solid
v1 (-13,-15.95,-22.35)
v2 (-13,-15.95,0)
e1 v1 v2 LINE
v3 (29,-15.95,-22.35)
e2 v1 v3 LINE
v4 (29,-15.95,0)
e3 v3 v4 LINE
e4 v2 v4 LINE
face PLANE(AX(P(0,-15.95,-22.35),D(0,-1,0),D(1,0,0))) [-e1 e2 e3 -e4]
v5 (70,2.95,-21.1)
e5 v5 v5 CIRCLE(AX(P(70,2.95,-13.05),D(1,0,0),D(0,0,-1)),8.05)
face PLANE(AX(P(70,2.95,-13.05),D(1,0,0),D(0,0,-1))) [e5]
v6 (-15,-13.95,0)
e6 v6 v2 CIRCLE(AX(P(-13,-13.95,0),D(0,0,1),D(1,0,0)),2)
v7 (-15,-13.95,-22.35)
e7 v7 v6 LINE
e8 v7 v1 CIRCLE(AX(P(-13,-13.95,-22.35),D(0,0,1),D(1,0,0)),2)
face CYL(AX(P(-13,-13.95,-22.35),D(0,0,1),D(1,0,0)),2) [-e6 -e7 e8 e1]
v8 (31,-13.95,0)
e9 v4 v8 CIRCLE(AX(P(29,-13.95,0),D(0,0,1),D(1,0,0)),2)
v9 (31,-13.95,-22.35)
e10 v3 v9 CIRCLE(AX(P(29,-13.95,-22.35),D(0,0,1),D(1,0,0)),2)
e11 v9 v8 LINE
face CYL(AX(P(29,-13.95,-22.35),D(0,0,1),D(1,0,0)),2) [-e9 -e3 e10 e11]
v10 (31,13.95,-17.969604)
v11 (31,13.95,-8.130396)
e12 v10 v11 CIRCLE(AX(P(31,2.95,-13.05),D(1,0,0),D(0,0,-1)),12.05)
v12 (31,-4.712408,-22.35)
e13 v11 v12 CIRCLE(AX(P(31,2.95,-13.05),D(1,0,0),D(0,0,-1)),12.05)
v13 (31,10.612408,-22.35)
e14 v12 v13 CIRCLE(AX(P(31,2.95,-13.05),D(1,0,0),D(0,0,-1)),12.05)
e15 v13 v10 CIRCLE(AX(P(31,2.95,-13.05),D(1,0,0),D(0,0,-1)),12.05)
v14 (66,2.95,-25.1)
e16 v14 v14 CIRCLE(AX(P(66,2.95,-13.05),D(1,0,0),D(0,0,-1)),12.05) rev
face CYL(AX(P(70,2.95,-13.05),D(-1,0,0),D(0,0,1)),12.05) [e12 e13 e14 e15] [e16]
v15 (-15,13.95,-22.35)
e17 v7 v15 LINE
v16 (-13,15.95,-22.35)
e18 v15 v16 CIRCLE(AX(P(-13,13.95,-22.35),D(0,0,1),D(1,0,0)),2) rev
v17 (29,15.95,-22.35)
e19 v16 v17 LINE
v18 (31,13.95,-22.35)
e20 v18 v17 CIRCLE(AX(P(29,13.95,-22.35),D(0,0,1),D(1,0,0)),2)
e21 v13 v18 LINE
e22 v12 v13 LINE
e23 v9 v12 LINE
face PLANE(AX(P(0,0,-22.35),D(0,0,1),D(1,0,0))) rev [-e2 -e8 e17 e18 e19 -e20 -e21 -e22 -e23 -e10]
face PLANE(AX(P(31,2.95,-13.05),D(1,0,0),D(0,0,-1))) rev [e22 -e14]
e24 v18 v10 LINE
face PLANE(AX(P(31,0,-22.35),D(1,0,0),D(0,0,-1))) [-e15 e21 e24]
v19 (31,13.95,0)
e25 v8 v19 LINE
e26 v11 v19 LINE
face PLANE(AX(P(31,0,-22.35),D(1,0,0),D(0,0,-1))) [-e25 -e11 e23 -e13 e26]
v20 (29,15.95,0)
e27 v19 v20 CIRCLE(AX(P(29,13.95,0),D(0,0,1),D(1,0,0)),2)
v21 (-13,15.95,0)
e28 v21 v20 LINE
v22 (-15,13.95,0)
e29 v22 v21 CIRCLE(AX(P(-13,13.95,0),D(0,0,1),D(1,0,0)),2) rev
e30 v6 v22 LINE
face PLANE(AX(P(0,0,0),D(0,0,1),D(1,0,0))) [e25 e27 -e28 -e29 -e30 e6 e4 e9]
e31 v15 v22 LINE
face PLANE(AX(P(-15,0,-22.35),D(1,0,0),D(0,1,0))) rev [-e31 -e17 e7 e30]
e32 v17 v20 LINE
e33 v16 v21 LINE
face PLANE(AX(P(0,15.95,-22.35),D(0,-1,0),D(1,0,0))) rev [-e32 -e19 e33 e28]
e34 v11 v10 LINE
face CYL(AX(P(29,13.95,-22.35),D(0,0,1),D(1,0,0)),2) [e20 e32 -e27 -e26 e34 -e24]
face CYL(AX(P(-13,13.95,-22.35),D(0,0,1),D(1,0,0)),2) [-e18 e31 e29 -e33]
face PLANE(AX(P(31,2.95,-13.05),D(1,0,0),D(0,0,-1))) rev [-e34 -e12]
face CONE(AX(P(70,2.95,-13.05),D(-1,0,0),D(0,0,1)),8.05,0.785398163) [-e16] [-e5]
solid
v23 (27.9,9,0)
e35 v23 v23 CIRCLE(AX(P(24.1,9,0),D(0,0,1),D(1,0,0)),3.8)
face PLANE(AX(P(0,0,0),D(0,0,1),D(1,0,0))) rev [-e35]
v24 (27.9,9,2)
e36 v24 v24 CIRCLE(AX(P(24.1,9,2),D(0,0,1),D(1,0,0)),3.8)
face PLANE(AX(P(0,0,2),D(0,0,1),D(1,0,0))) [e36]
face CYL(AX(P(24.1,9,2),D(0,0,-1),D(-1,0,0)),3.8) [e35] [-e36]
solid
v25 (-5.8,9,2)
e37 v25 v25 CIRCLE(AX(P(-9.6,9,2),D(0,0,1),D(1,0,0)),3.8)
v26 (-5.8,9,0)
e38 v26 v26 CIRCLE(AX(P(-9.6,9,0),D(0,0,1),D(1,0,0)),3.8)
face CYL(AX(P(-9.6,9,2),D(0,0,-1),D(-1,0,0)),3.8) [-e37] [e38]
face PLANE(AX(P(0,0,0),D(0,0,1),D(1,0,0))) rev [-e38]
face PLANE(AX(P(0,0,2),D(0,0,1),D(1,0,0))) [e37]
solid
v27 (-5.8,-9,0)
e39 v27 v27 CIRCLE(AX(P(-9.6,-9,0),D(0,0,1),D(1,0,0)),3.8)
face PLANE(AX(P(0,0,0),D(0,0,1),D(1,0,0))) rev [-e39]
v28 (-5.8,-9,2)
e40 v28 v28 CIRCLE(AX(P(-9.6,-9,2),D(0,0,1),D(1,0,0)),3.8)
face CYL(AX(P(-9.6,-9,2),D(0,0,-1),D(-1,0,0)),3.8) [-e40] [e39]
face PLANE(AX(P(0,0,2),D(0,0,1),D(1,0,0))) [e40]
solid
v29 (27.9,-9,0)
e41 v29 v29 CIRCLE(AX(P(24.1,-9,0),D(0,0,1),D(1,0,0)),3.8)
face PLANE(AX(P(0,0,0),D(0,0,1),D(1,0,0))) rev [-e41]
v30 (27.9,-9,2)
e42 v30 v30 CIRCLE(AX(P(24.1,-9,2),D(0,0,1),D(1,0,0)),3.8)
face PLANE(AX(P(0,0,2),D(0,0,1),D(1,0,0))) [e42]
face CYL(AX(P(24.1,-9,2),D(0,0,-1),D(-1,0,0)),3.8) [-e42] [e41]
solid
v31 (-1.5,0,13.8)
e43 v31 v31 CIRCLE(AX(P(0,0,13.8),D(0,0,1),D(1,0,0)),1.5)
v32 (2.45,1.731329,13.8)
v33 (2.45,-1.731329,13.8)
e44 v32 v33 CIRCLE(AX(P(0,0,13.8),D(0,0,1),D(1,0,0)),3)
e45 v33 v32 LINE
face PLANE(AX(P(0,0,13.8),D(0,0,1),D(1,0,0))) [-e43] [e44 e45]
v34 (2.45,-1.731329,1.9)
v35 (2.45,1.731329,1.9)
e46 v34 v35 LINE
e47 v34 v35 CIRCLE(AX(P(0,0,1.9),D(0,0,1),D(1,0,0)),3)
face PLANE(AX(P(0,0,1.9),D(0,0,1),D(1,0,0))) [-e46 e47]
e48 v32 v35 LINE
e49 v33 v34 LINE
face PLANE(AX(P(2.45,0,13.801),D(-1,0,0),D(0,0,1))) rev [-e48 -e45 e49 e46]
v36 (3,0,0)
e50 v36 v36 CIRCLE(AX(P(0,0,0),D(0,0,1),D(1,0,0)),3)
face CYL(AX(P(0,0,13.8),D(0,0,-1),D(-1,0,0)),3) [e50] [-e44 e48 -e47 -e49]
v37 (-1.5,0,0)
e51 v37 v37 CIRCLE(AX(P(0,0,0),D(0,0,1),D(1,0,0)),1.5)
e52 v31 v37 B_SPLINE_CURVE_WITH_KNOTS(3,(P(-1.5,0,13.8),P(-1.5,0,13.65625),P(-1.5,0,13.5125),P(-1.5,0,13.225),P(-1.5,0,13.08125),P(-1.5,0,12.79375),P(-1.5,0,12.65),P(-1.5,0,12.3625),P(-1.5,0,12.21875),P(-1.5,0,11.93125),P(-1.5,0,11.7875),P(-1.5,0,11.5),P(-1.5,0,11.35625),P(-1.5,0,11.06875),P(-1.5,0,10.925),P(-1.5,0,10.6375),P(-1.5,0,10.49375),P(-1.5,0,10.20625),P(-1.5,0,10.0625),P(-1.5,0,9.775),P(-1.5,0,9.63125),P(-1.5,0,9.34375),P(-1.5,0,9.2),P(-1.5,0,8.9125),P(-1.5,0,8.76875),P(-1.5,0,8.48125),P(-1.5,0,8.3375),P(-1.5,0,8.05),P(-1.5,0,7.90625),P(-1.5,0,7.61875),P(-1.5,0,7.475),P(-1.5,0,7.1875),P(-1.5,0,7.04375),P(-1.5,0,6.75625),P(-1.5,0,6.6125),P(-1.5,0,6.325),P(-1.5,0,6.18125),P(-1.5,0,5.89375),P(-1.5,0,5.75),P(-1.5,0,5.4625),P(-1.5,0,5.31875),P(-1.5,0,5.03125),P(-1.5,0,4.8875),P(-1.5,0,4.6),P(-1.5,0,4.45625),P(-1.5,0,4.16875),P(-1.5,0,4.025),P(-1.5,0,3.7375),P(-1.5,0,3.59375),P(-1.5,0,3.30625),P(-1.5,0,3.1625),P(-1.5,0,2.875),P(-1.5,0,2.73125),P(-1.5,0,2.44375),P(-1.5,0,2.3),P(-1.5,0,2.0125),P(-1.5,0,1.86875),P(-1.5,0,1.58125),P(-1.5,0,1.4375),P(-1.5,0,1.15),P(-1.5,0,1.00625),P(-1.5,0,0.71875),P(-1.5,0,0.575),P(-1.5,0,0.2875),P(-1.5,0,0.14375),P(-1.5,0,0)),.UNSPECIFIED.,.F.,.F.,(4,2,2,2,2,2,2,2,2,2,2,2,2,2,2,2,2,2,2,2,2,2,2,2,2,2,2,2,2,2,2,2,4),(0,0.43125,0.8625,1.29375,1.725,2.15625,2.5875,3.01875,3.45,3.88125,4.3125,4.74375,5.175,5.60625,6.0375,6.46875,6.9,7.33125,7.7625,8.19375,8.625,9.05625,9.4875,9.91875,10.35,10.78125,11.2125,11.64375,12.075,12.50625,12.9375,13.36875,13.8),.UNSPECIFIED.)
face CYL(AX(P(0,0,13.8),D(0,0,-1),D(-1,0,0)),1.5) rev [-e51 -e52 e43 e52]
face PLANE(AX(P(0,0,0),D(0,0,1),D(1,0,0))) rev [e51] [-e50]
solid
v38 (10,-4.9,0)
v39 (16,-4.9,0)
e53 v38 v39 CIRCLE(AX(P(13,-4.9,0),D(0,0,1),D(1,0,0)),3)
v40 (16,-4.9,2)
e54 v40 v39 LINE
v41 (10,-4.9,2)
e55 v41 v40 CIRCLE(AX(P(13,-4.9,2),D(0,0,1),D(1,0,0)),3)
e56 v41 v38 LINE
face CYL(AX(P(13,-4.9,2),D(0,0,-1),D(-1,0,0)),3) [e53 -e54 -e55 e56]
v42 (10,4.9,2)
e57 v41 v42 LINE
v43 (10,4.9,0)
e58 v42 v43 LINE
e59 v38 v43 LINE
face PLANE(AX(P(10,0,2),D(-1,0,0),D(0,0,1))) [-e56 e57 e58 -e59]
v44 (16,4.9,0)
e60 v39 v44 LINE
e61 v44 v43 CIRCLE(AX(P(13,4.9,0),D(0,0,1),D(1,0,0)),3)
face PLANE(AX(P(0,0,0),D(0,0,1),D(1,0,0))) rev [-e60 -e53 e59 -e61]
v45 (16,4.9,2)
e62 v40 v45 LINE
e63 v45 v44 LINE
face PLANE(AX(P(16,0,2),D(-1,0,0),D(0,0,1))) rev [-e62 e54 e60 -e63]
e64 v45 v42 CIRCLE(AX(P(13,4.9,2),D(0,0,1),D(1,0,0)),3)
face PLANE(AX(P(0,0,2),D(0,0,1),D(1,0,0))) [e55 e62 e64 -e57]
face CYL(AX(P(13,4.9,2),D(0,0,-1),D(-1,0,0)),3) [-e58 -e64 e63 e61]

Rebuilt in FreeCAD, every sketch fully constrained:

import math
import FreeCAD as App
import Part
import Sketcher
from FreeCAD import Vector


def edges_at(feature, points):
    """Names of the edges that pass closest to the given points."""
    edges = feature.Shape.Edges
    near = lambda p: min(range(len(edges)), key=lambda i: edges[i].distToShape(Part.Vertex(*p))[0])
    return sorted({f"Edge{near(p) + 1}" for p in points})

doc = App.newDocument("Part")
params = doc.addObject("Spreadsheet::Sheet", "Params")
for row, (alias, value) in enumerate([
    ("sketch1_diameter", "6 mm"),
    ("sketch1_diameter2", "3 mm"),
    ("pad1_length", "13.8 mm"),
    ("sketch2_radius", "3 mm"),
    ("sketch3_radius", "3 mm"),
    ("sketch3_height", "9.8 mm"),
    ("pad2_length", "2 mm"),
    ("sketch4_diameter", "7.6 mm"),
    ("pad3_length", "2 mm"),
    ("sketch5_diameter", "7.6 mm"),
    ("pad4_length", "2 mm"),
    ("sketch6_diameter", "7.6 mm"),
    ("pad5_length", "2 mm"),
    ("sketch7_diameter", "7.6 mm"),
    ("pad6_length", "2 mm"),
    ("sketch8_radius", "2 mm"),
    ("sketch8_width", "42 mm"),
    ("sketch8_height", "27.9 mm"),
    ("pad7_length", "22.35 mm"),
    ("sketch9_diameter", "24.1 mm"),
    ("pad8_length", "39 mm"),
    ("chamfer_size", "4 mm"),
], start=1):
    params.set(f"A{row}", alias)
    params.set(f"B{row}", "=" + value)
    params.setAlias(f"B{row}", alias)

body = doc.addObject("PartDesign::Body", "Body")

# Sketch on XY plane
sketch1 = body.newObject("Sketcher::SketchObject", "Sketch")
sketch1.AttachmentSupport = (doc.getObject("XY_Plane"), [""])
sketch1.MapMode = "FlatFace"
sketch1.addGeometry(Part.Circle(Vector(0, 0, 0), Vector(0, 0, 1), 3), False)
sketch1.addGeometry(Part.Circle(Vector(0, 0, 0), Vector(0, 0, 1), 1.5), False)
sketch1.addConstraint(Sketcher.Constraint("Coincident", 0, 3, -1, 1))
sketch1.addConstraint(Sketcher.Constraint("Coincident", 1, 3, -1, 1))
sketch1.addConstraint(Sketcher.Constraint("Diameter", 0, 6.0))
sketch1.addConstraint(Sketcher.Constraint("Diameter", 1, 3.0))
sketch1.setExpression("Constraints[2]", "Params.sketch1_diameter")
sketch1.setExpression("Constraints[3]", "Params.sketch1_diameter2")
pad1 = body.newObject("PartDesign::Pad", "Pad")
pad1.Profile = sketch1
pad1.setExpression("Length", "Params.pad1_length")

# Sketch on XY plane
sketch2 = body.newObject("Sketcher::SketchObject", "Sketch001")
sketch2.AttachmentSupport = (doc.getObject("XY_Plane"), [""])
sketch2.MapMode = "FlatFace"
sketch2.AttachmentOffset = App.Placement(Vector(0, 0, 1.9), App.Rotation())
sketch2.addGeometry(Part.LineSegment(Vector(2.5, 1.7, 0), Vector(2.5, -1.7, 0)), False)
sketch2.addGeometry(Part.ArcOfCircle(Part.Circle(Vector(0, 0, 0), Vector(0, 0, 1), 3), math.radians(-35), math.radians(35)), False)
sketch2.addConstraint(Sketcher.Constraint("Coincident", 0, 1, 1, 2))
sketch2.addConstraint(Sketcher.Constraint("Coincident", 1, 1, 0, 2))
sketch2.addConstraint(Sketcher.Constraint("Vertical", 0))
sketch2.addConstraint(Sketcher.Constraint("Coincident", 1, 3, -1, 1))
sketch2.addConstraint(Sketcher.Constraint("Radius", 1, 3.0))
sketch2.addConstraint(Sketcher.Constraint("DistanceX", -1, 1, 0, 1, 2.45))
sketch2.setExpression("Constraints[4]", "Params.sketch2_radius")
pocket1 = body.newObject("PartDesign::Pocket", "Pocket")
pocket1.Profile = sketch2
pocket1.Type = "UpToFirst"
pocket1.Reversed = True
body2 = doc.addObject("PartDesign::Body", "Body001")

# Sketch on XY plane
sketch3 = body2.newObject("Sketcher::SketchObject", "Sketch002")
sketch3.AttachmentSupport = (doc.getObject("XY_Plane001"), [""])
sketch3.MapMode = "FlatFace"
sketch3.addGeometry(Part.LineSegment(Vector(16, -4.9, 0), Vector(16, 4.9, 0)), False)
sketch3.addGeometry(Part.ArcOfCircle(Part.Circle(Vector(13, 4.9, 0), Vector(0, 0, 1), 3), math.radians(0), math.radians(180)), False)
sketch3.addGeometry(Part.LineSegment(Vector(10, 4.9, 0), Vector(10, -4.9, 0)), False)
sketch3.addGeometry(Part.ArcOfCircle(Part.Circle(Vector(13, -4.9, 0), Vector(0, 0, 1), 3), math.radians(180), math.radians(360)), False)
sketch3.addConstraint(Sketcher.Constraint("Tangent", 0, 2, 1, 1))
sketch3.addConstraint(Sketcher.Constraint("Tangent", 1, 2, 2, 1))
sketch3.addConstraint(Sketcher.Constraint("Tangent", 2, 2, 3, 1))
sketch3.addConstraint(Sketcher.Constraint("Tangent", 3, 2, 0, 1))
sketch3.addConstraint(Sketcher.Constraint("Vertical", 0))
sketch3.addConstraint(Sketcher.Constraint("Vertical", 2))
sketch3.addConstraint(Sketcher.Constraint("Radius", 1, 3.0))
sketch3.addConstraint(Sketcher.Constraint("DistanceY", 0, 1, 0, 2, 9.8))
sketch3.addConstraint(Sketcher.Constraint("DistanceX", -1, 1, 1, 3, 13.0))
sketch3.addConstraint(Sketcher.Constraint("DistanceY", -1, 1, 1, 3, 4.9))
sketch3.setExpression("Constraints[6]", "Params.sketch3_radius")
sketch3.setExpression("Constraints[7]", "Params.sketch3_height")
pad2 = body2.newObject("PartDesign::Pad", "Pad001")
pad2.Profile = sketch3
pad2.setExpression("Length", "Params.pad2_length")
body3 = doc.addObject("PartDesign::Body", "Body002")

# Sketch on XY plane
sketch4 = body3.newObject("Sketcher::SketchObject", "Sketch003")
sketch4.AttachmentSupport = (doc.getObject("XY_Plane002"), [""])
sketch4.MapMode = "FlatFace"
sketch4.addGeometry(Part.Circle(Vector(24.1, 9, 0), Vector(0, 0, 1), 3.8), False)
sketch4.addConstraint(Sketcher.Constraint("Diameter", 0, 7.6))
sketch4.addConstraint(Sketcher.Constraint("DistanceY", -1, 1, 0, 3, 9.0))
sketch4.addConstraint(Sketcher.Constraint("DistanceX", -1, 1, 0, 3, 24.1))
sketch4.setExpression("Constraints[0]", "Params.sketch4_diameter")
pad3 = body3.newObject("PartDesign::Pad", "Pad002")
pad3.Profile = sketch4
pad3.setExpression("Length", "Params.pad3_length")
body4 = doc.addObject("PartDesign::Body", "Body003")

# Sketch on XY plane
sketch5 = body4.newObject("Sketcher::SketchObject", "Sketch004")
sketch5.AttachmentSupport = (doc.getObject("XY_Plane003"), [""])
sketch5.MapMode = "FlatFace"
sketch5.addGeometry(Part.Circle(Vector(24.1, -9, 0), Vector(0, 0, 1), 3.8), False)
sketch5.addConstraint(Sketcher.Constraint("Diameter", 0, 7.6))
sketch5.addConstraint(Sketcher.Constraint("DistanceY", 0, 3, -1, 1, 9.0))
sketch5.addConstraint(Sketcher.Constraint("DistanceX", -1, 1, 0, 3, 24.1))
sketch5.setExpression("Constraints[0]", "Params.sketch5_diameter")
pad4 = body4.newObject("PartDesign::Pad", "Pad003")
pad4.Profile = sketch5
pad4.setExpression("Length", "Params.pad4_length")
body5 = doc.addObject("PartDesign::Body", "Body004")

# Sketch on XY plane
sketch6 = body5.newObject("Sketcher::SketchObject", "Sketch005")
sketch6.AttachmentSupport = (doc.getObject("XY_Plane004"), [""])
sketch6.MapMode = "FlatFace"
sketch6.addGeometry(Part.Circle(Vector(-9.6, 9, 0), Vector(0, 0, 1), 3.8), False)
sketch6.addConstraint(Sketcher.Constraint("Diameter", 0, 7.6))
sketch6.addConstraint(Sketcher.Constraint("DistanceY", -1, 1, 0, 3, 9.0))
sketch6.addConstraint(Sketcher.Constraint("DistanceX", 0, 3, -1, 1, 9.6))
sketch6.setExpression("Constraints[0]", "Params.sketch6_diameter")
pad5 = body5.newObject("PartDesign::Pad", "Pad004")
pad5.Profile = sketch6
pad5.setExpression("Length", "Params.pad5_length")
body6 = doc.addObject("PartDesign::Body", "Body005")

# Sketch on XY plane
sketch7 = body6.newObject("Sketcher::SketchObject", "Sketch006")
sketch7.AttachmentSupport = (doc.getObject("XY_Plane005"), [""])
sketch7.MapMode = "FlatFace"
sketch7.addGeometry(Part.Circle(Vector(-9.6, -9, 0), Vector(0, 0, 1), 3.8), False)
sketch7.addConstraint(Sketcher.Constraint("Diameter", 0, 7.6))
sketch7.addConstraint(Sketcher.Constraint("DistanceY", 0, 3, -1, 1, 9.0))
sketch7.addConstraint(Sketcher.Constraint("DistanceX", 0, 3, -1, 1, 9.6))
sketch7.setExpression("Constraints[0]", "Params.sketch7_diameter")
pad6 = body6.newObject("PartDesign::Pad", "Pad005")
pad6.Profile = sketch7
pad6.setExpression("Length", "Params.pad6_length")
body7 = doc.addObject("PartDesign::Body", "Body006")

# Sketch on XY plane
sketch8 = body7.newObject("Sketcher::SketchObject", "Sketch007")
sketch8.AttachmentSupport = (doc.getObject("XY_Plane006"), [""])
sketch8.MapMode = "FlatFace"
sketch8.addGeometry(Part.LineSegment(Vector(-15, 13.9, 0), Vector(-15, -13.9, 0)), False)
sketch8.addGeometry(Part.ArcOfCircle(Part.Circle(Vector(-13, -13.9, 0), Vector(0, 0, 1), 2), math.radians(-180), math.radians(-90)), False)
sketch8.addGeometry(Part.LineSegment(Vector(-13, -15.9, 0), Vector(29, -15.9, 0)), False)
sketch8.addGeometry(Part.ArcOfCircle(Part.Circle(Vector(29, -13.9, 0), Vector(0, 0, 1), 2), math.radians(-90), math.radians(0)), False)
sketch8.addGeometry(Part.LineSegment(Vector(31, -13.9, 0), Vector(31, 13.9, 0)), False)
sketch8.addGeometry(Part.ArcOfCircle(Part.Circle(Vector(29, 13.9, 0), Vector(0, 0, 1), 2), math.radians(0), math.radians(90)), False)
sketch8.addGeometry(Part.LineSegment(Vector(29, 15.9, 0), Vector(-13, 15.9, 0)), False)
sketch8.addGeometry(Part.ArcOfCircle(Part.Circle(Vector(-13, 13.9, 0), Vector(0, 0, 1), 2), math.radians(90), math.radians(180)), False)
sketch8.addConstraint(Sketcher.Constraint("Tangent", 0, 2, 1, 1))
sketch8.addConstraint(Sketcher.Constraint("Tangent", 1, 2, 2, 1))
sketch8.addConstraint(Sketcher.Constraint("Tangent", 2, 2, 3, 1))
sketch8.addConstraint(Sketcher.Constraint("Tangent", 3, 2, 4, 1))
sketch8.addConstraint(Sketcher.Constraint("Tangent", 4, 2, 5, 1))
sketch8.addConstraint(Sketcher.Constraint("Tangent", 5, 2, 6, 1))
sketch8.addConstraint(Sketcher.Constraint("Tangent", 6, 2, 7, 1))
sketch8.addConstraint(Sketcher.Constraint("Tangent", 7, 2, 0, 1))
sketch8.addConstraint(Sketcher.Constraint("Vertical", 0))
sketch8.addConstraint(Sketcher.Constraint("Horizontal", 2))
sketch8.addConstraint(Sketcher.Constraint("Vertical", 4))
sketch8.addConstraint(Sketcher.Constraint("Horizontal", 6))
sketch8.addConstraint(Sketcher.Constraint("Equal", 1, 3))
sketch8.addConstraint(Sketcher.Constraint("Equal", 3, 5))
sketch8.addConstraint(Sketcher.Constraint("Equal", 5, 7))
sketch8.addConstraint(Sketcher.Constraint("Radius", 1, 2.0))
sketch8.addConstraint(Sketcher.Constraint("DistanceX", 2, 1, 2, 2, 42.0))
sketch8.addConstraint(Sketcher.Constraint("DistanceY", 0, 2, 0, 1, 27.9))
sketch8.addConstraint(Sketcher.Constraint("DistanceX", 1, 3, -1, 1, 13.0))
sketch8.addConstraint(Sketcher.Constraint("DistanceY", 1, 3, -1, 1, 13.95))
sketch8.setExpression("Constraints[15]", "Params.sketch8_radius")
sketch8.setExpression("Constraints[16]", "Params.sketch8_width")
sketch8.setExpression("Constraints[17]", "Params.sketch8_height")
pad7 = body7.newObject("PartDesign::Pad", "Pad006")
pad7.Profile = sketch8
pad7.setExpression("Length", "Params.pad7_length")
pad7.Reversed = True

# Sketch on YZ plane
sketch9 = body7.newObject("Sketcher::SketchObject", "Sketch008")
sketch9.AttachmentSupport = (doc.getObject("YZ_Plane006"), [""])
sketch9.MapMode = "FlatFace"
sketch9.AttachmentOffset = App.Placement(Vector(0, 0, 31), App.Rotation())
sketch9.addGeometry(Part.Circle(Vector(3, -13, 0), Vector(0, 0, 1), 12), False)
sketch9.addConstraint(Sketcher.Constraint("Diameter", 0, 24.1))
sketch9.addConstraint(Sketcher.Constraint("DistanceX", -1, 1, 0, 3, 2.95))
sketch9.addConstraint(Sketcher.Constraint("DistanceY", 0, 3, -1, 1, 13.05))
sketch9.setExpression("Constraints[0]", "Params.sketch9_diameter")
pad8 = body7.newObject("PartDesign::Pad", "Pad007")
pad8.Profile = sketch9
pad8.setExpression("Length", "Params.pad8_length")
doc.recompute()

chamfer = body7.newObject("PartDesign::Chamfer", "Chamfer")
chamfer.Base = (pad8, edges_at(pad8, [(70, -8.05, -17.97)]))
chamfer.setExpression("Size", "Params.chamfer_size")

doc.recompute()
